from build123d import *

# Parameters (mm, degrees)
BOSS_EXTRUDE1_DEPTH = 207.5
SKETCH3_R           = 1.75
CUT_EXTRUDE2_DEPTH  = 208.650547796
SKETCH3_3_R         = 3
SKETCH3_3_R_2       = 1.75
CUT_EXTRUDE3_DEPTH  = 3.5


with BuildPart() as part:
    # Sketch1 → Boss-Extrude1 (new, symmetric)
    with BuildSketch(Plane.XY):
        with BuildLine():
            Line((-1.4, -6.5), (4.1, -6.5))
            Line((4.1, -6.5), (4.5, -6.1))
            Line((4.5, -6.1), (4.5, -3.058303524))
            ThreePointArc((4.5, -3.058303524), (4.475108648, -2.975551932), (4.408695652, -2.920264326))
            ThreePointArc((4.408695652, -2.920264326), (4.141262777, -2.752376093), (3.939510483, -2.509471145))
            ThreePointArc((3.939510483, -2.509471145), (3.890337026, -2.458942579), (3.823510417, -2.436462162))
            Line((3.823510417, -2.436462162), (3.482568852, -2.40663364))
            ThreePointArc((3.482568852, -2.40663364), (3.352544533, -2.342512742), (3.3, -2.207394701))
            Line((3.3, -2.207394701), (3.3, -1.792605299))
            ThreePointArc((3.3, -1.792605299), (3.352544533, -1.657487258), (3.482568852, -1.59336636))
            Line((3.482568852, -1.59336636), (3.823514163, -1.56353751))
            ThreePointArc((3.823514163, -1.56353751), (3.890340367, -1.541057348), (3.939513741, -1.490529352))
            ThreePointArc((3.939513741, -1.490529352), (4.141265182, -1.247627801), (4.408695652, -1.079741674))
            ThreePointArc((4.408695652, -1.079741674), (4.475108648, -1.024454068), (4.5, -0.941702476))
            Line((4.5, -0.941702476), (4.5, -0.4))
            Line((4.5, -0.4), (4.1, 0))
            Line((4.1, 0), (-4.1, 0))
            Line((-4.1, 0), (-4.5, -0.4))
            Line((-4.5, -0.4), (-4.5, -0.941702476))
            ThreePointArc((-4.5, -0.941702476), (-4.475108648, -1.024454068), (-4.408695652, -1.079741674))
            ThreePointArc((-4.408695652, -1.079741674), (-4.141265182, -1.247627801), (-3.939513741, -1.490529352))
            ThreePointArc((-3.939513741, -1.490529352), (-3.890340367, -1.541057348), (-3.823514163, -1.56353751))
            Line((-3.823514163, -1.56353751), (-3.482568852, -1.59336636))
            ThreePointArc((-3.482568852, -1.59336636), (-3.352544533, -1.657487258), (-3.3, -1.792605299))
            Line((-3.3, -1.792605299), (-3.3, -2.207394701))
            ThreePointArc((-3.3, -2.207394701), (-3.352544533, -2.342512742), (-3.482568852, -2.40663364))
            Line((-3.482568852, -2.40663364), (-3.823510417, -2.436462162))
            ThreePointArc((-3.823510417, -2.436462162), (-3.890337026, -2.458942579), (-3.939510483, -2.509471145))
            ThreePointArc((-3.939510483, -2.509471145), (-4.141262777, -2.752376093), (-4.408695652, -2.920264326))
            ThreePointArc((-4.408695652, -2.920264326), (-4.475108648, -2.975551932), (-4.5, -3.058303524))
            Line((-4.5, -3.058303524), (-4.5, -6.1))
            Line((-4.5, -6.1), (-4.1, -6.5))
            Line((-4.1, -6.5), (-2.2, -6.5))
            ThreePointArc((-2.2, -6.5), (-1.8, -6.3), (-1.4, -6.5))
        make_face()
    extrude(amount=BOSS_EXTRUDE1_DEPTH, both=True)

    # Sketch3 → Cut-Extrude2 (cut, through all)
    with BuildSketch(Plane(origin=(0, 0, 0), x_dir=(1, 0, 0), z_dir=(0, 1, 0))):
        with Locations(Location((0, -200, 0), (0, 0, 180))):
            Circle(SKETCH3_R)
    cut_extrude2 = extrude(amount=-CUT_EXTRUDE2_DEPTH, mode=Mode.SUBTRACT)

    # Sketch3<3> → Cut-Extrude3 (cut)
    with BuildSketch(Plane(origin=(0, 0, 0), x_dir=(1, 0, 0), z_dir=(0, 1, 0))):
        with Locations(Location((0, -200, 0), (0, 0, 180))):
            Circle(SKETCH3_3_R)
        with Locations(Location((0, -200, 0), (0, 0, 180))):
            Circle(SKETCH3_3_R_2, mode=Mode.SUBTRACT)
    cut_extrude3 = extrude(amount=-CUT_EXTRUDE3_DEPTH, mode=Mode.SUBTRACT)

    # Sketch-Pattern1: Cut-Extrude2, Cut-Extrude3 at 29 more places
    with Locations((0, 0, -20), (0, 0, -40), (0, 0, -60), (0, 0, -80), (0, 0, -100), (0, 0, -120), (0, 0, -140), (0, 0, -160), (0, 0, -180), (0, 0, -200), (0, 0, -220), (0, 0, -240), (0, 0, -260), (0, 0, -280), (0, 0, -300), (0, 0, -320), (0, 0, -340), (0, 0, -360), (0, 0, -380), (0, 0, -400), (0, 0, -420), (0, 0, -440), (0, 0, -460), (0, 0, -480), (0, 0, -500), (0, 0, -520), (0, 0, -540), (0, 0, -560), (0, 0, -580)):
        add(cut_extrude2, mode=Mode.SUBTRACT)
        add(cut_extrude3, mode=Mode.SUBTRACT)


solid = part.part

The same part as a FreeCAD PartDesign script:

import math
import FreeCAD as App
import Part
import Sketcher
from FreeCAD import Vector
Q = App.Units.Quantity

doc = App.newDocument("Part")
body = doc.addObject("PartDesign::Body", "Body")

sketch1 = body.newObject("Sketcher::SketchObject", "Sketch")
sketch1.AttachmentSupport = (doc.getObject("XY_Plane"), [""])
sketch1.MapMode = "FlatFace"
sketch1.addGeometry([
    Part.LineSegment(Vector(-1.4, -6.5, 0), Vector(4.1, -6.5, 0)),
    Part.LineSegment(Vector(4.1, -6.5, 0), Vector(4.5, -6.1, 0)),
    Part.LineSegment(Vector(4.5, -6.1, 0), Vector(4.5, -3.058304, 0)),
    Part.ArcOfCircle(Part.Circle(Vector(4.35, -3.058304, 0), Vector(0, 0, 1), 0.15), math.radians(0.000001), math.radians(66.964316)),
    Part.ArcOfCircle(Part.Circle(Vector(4.8, -2.000003, 0), Vector(0, 0, 1), 1), math.radians(-149.37159), math.radians(-113.035684)),
    Part.ArcOfCircle(Part.Circle(Vector(3.810437, -2.585891, 0), Vector(0, 0, 1), 0.15), math.radians(30.62841), math.radians(85)),
    Part.LineSegment(Vector(3.82351, -2.436462, 0), Vector(3.482569, -2.406634, 0)),
    Part.ArcOfCircle(Part.Circle(Vector(3.5, -2.207395, 0), Vector(0, 0, 1), 0.2), math.radians(-180), math.radians(-95)),
    Part.LineSegment(Vector(3.3, -2.207395, 0), Vector(3.3, -1.792605, 0)),
    Part.ArcOfCircle(Part.Circle(Vector(3.5, -1.792605, 0), Vector(0, 0, 1), 0.2), math.radians(95), math.radians(180)),
    Part.LineSegment(Vector(3.482569, -1.593366, 0), Vector(3.823514, -1.563538, 0)),
    Part.ArcOfCircle(Part.Circle(Vector(3.810441, -1.414108, 0), Vector(0, 0, 1), 0.15), math.radians(-85), math.radians(-30.628776)),
    Part.ArcOfCircle(Part.Circle(Vector(4.8, -2.000003, 0), Vector(0, 0, 1), 1), math.radians(113.035684), math.radians(149.371224)),
    Part.ArcOfCircle(Part.Circle(Vector(4.35, -0.941702, 0), Vector(0, 0, 1), 0.15), math.radians(-66.964316), math.radians(-0.000001)),
    Part.LineSegment(Vector(4.5, -0.941702, 0), Vector(4.5, -0.4, 0)),
    Part.LineSegment(Vector(4.5, -0.4, 0), Vector(4.1, 0, 0)),
    Part.LineSegment(Vector(4.1, 0, 0), Vector(-4.1, 0, 0)),
    Part.LineSegment(Vector(-4.1, 0, 0), Vector(-4.5, -0.4, 0)),
    Part.LineSegment(Vector(-4.5, -0.4, 0), Vector(-4.5, -0.941702, 0)),
    Part.ArcOfCircle(Part.Circle(Vector(-4.35, -0.941702, 0), Vector(0, 0, 1), 0.15), math.radians(-179.999999), math.radians(-113.035684)),
    Part.ArcOfCircle(Part.Circle(Vector(-4.8, -2.000003, 0), Vector(0, 0, 1), 1), math.radians(30.628776), math.radians(66.964316)),
    Part.ArcOfCircle(Part.Circle(Vector(-3.810441, -1.414108, 0), Vector(0, 0, 1), 0.15), math.radians(-149.371224), math.radians(-95)),
    Part.LineSegment(Vector(-3.823514, -1.563538, 0), Vector(-3.482569, -1.593366, 0)),
    Part.ArcOfCircle(Part.Circle(Vector(-3.5, -1.792605, 0), Vector(0, 0, 1), 0.2), math.radians(0), math.radians(85)),
    Part.LineSegment(Vector(-3.3, -1.792605, 0), Vector(-3.3, -2.207395, 0)),
    Part.ArcOfCircle(Part.Circle(Vector(-3.5, -2.207395, 0), Vector(0, 0, 1), 0.2), math.radians(-85), math.radians(0)),
    Part.LineSegment(Vector(-3.482569, -2.406634, 0), Vector(-3.82351, -2.436462, 0)),
    Part.ArcOfCircle(Part.Circle(Vector(-3.810437, -2.585891, 0), Vector(0, 0, 1), 0.15), math.radians(95), math.radians(149.37159)),
    Part.ArcOfCircle(Part.Circle(Vector(-4.8, -2.000003, 0), Vector(0, 0, 1), 1), math.radians(-66.964316), math.radians(-30.62841)),
    Part.ArcOfCircle(Part.Circle(Vector(-4.35, -3.058304, 0), Vector(0, 0, 1), 0.15), math.radians(113.035684), math.radians(179.999999)),
    Part.LineSegment(Vector(-4.5, -3.058304, 0), Vector(-4.5, -6.1, 0)),
    Part.LineSegment(Vector(-4.5, -6.1, 0), Vector(-4.1, -6.5, 0)),
    Part.LineSegment(Vector(-4.1, -6.5, 0), Vector(-2.2, -6.5, 0)),
    Part.ArcOfCircle(Part.Circle(Vector(-1.8, -6.8, 0), Vector(0, 0, 1), 0.5), math.radians(36.869898), math.radians(143.130102)),
], False)
sketch1.addConstraint([
    Sketcher.Constraint("Coincident", 0, 2, 1, 1),
    Sketcher.Constraint("Coincident", 1, 2, 2, 1),
    Sketcher.Constraint("Tangent", 2, 2, 3, 1),
    Sketcher.Constraint("Tangent", 3, 2, 4, 2),
    Sketcher.Constraint("Tangent", 4, 1, 5, 1),
    Sketcher.Constraint("Tangent", 5, 2, 6, 1),
    Sketcher.Constraint("Tangent", 6, 2, 7, 2),
    Sketcher.Constraint("Tangent", 7, 1, 8, 1),
    Sketcher.Constraint("Tangent", 8, 2, 9, 2),
    Sketcher.Constraint("Tangent", 9, 1, 10, 1),
    Sketcher.Constraint("Tangent", 10, 2, 11, 1),
    Sketcher.Constraint("Tangent", 11, 2, 12, 2),
    Sketcher.Constraint("Tangent", 12, 1, 13, 1),
    Sketcher.Constraint("Tangent", 13, 2, 14, 1),
    Sketcher.Constraint("Coincident", 14, 2, 15, 1),
    Sketcher.Constraint("Coincident", 15, 2, 16, 1),
    Sketcher.Constraint("Coincident", 16, 2, 17, 1),
    Sketcher.Constraint("Coincident", 17, 2, 18, 1),
    Sketcher.Constraint("Tangent", 18, 2, 19, 1),
    Sketcher.Constraint("Tangent", 19, 2, 20, 2),
    Sketcher.Constraint("Tangent", 20, 1, 21, 1),
    Sketcher.Constraint("Tangent", 21, 2, 22, 1),
    Sketcher.Constraint("Tangent", 22, 2, 23, 2),
    Sketcher.Constraint("Tangent", 23, 1, 24, 1),
    Sketcher.Constraint("Tangent", 24, 2, 25, 2),
    Sketcher.Constraint("Tangent", 25, 1, 26, 1),
    Sketcher.Constraint("Tangent", 26, 2, 27, 1),
    Sketcher.Constraint("Tangent", 27, 2, 28, 2),
    Sketcher.Constraint("Tangent", 28, 1, 29, 1),
    Sketcher.Constraint("Tangent", 29, 2, 30, 1),
    Sketcher.Constraint("Coincident", 30, 2, 31, 1),
    Sketcher.Constraint("Coincident", 31, 2, 32, 1),
    Sketcher.Constraint("Coincident", 32, 2, 33, 2),
    Sketcher.Constraint("Coincident", 33, 1, 0, 1),
    Sketcher.Constraint("Horizontal", 0),
    Sketcher.Constraint("Vertical", 2),
    Sketcher.Constraint("Vertical", 8),
    Sketcher.Constraint("Vertical", 14),
    Sketcher.Constraint("Horizontal", 16),
    Sketcher.Constraint("Vertical", 18),
    Sketcher.Constraint("Vertical", 24),
    Sketcher.Constraint("Vertical", 30),
    Sketcher.Constraint("Horizontal", 32),
    Sketcher.Constraint("Coincident", 12, 3, 4, 3),
    Sketcher.Constraint("Coincident", 28, 3, 20, 3),
    Sketcher.Constraint("Equal", 3, 5),
    Sketcher.Constraint("Equal", 7, 9),
    Sketcher.Constraint("Equal", 5, 11),
    Sketcher.Constraint("Equal", 4, 12),
    Sketcher.Constraint("Equal", 11, 13),
    Sketcher.Constraint("Equal", 13, 19),
    Sketcher.Constraint("Equal", 12, 20),
    Sketcher.Constraint("Equal", 19, 21),
    Sketcher.Constraint("Equal", 9, 23),
    Sketcher.Constraint("Equal", 23, 25),
    Sketcher.Constraint("Equal", 21, 27),
    Sketcher.Constraint("Equal", 20, 28),
    Sketcher.Constraint("Equal", 27, 29),
    Sketcher.Constraint("Symmetric", 15, 2, 16, 2, -1, 1),
    Sketcher.Constraint("Symmetric", 13, 3, 19, 3, -2),
    Sketcher.Constraint("Symmetric", 11, 3, 21, 3, -2),
    Sketcher.Constraint("Symmetric", 9, 3, 23, 3, -2),
    Sketcher.Constraint("Symmetric", 6, 2, 25, 1, -2),
    Sketcher.Constraint("Symmetric", 1, 2, 30, 2, -2),
    Sketcher.Constraint("Symmetric", 0, 2, 31, 2, -2),
    Sketcher.Constraint("Perpendicular", 1, 15),
    Sketcher.Constraint("Perpendicular", 15, 17),
    Sketcher.Constraint("Parallel", 6, 22),
    Sketcher.Constraint("Perpendicular", 17, 31),
    Sketcher.Constraint("Vertical", 3, 3, 13, 3),
    Sketcher.Constraint("Vertical", 0, 2, 15, 2),
    Sketcher.Constraint("Radius", 4, 1.0),
    Sketcher.Constraint("Radius", 7, 0.2),
    Sketcher.Constraint("Radius", 33, 0.5),
    Sketcher.Constraint("Angle", 6, Q("175 deg")),
    Sketcher.Constraint("Radius", 3, 0.15),
    Sketcher.Constraint("DistanceX", 0, 1, 0, 2, 5.5),
    Sketcher.Constraint("DistanceX", 16, 2, 16, 1, 8.2),
    Sketcher.Constraint("DistanceX", 32, 1, 32, 2, 1.9),
    Sketcher.Constraint("DistanceX", 23, 3, 9, 3, 7.0),
    Sketcher.Constraint("DistanceX", 20, 3, 33, 3, 3.0),
    Sketcher.Constraint("DistanceX", 7, 3, 1, 2, 1.0),
    Sketcher.Constraint("DistanceY", 33, 3, -1, 1, 6.8),
    Sketcher.Constraint("DistanceX", 5, 2, 4, 1, 0.116),
    Sketcher.Constraint("DistanceX", 10, 2, 11, 2, 0.116),
    Sketcher.Constraint("DistanceY", 2, 1, 2, 2, 3.041696),
])
pad1 = body.newObject("PartDesign::Pad", "Pad")
pad1.Profile = sketch1
pad1.Length = 415
pad1.Midplane = True

sketch2 = body.newObject("Sketcher::SketchObject", "Sketch001")
sketch2.AttachmentSupport = (doc.getObject("XZ_Plane"), [""])
sketch2.MapMode = "FlatFace"
sketch2.addGeometry(Part.Circle(Vector(0, 200, 0), Vector(0, 0, 1), 1.75), False)
sketch2.addConstraint([
    Sketcher.Constraint("PointOnObject", 0, 3, -2),
    Sketcher.Constraint("Diameter", 0, 3.5),
    Sketcher.Constraint("DistanceY", -1, 1, 0, 3, 200.0),
])
pocket1 = body.newObject("PartDesign::Pocket", "Pocket")
pocket1.Profile = sketch2
pocket1.Type = "ThroughAll"
pocket1.Reversed = True

sketch3 = body.newObject("Sketcher::SketchObject", "Sketch002")
sketch3.AttachmentSupport = (doc.getObject("XZ_Plane"), [""])
sketch3.MapMode = "FlatFace"
sketch3.addGeometry([
    Part.Circle(Vector(0, 200, 0), Vector(0, 0, 1), 3),
    Part.Circle(Vector(0, 200, 0), Vector(0, 0, 1), 1.75),
], False)
sketch3.addConstraint([
    Sketcher.Constraint("Coincident", 1, 3, 0, 3),
    Sketcher.Constraint("PointOnObject", 0, 3, -2),
    Sketcher.Constraint("Diameter", 0, 6.0),
    Sketcher.Constraint("Diameter", 1, 3.5),
    Sketcher.Constraint("DistanceY", -1, 1, 0, 3, 200.0),
])
pocket2 = body.newObject("PartDesign::Pocket", "Pocket001")
pocket2.Profile = sketch3
pocket2.Length = 3.5
pocket2.Reversed = True
doc.recompute()

linearpattern = body.newObject("PartDesign::LinearPattern", "LinearPattern")
linearpattern.Originals = [pocket1, pocket2]
linearpattern.Direction = (doc.getObject("Z_Axis"), [""])
linearpattern.Mode = "offset"
linearpattern.Offset = 20
linearpattern.Occurrences = 30
linearpattern.Reversed = True
body.Tip = linearpattern

doc.recompute()
